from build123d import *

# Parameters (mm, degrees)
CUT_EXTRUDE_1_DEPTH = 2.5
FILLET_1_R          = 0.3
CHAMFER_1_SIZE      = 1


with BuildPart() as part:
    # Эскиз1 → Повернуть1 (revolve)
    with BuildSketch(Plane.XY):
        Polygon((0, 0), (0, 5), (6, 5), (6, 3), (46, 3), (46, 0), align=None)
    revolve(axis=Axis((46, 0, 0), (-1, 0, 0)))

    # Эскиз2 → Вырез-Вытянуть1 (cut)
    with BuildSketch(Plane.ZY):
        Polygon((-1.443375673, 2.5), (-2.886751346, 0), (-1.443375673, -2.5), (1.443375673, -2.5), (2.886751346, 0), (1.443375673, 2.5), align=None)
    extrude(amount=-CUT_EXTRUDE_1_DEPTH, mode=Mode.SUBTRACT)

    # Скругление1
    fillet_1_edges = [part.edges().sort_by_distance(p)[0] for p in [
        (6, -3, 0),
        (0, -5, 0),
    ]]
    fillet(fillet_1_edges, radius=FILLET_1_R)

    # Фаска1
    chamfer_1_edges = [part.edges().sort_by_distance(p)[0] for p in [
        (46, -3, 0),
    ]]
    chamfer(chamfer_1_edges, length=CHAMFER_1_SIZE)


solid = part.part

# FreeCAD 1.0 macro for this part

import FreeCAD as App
import Part
import Sketcher
Q = App.Units.Quantity


def edges_at(feature, points):
    """Names of the edges that pass closest to the given points."""
    edges = feature.Shape.Edges
    near = lambda p: min(range(len(edges)), key=lambda i: edges[i].distToShape(Part.Vertex(*p))[0])
    return sorted({f"Edge{near(p) + 1}" for p in points})

doc = App.newDocument("Part")
body = doc.addObject("PartDesign::Body", "Body")

# Sketch on XY plane
sketch1 = body.newObject("Sketcher::SketchObject", "Sketch")
sketch1.AttachmentSupport = (doc.getObject("XY_Plane"), [""])
sketch1.MapMode = "FlatFace"
sketch1.addGeometry([
    Part.LineSegment(App.Vector(0, 5, 0), App.Vector(0, 0, 0)),  # 0
    Part.LineSegment(App.Vector(0, 0, 0), App.Vector(46, 0, 0)),  # 1
    Part.LineSegment(App.Vector(46, 0, 0), App.Vector(46, 3, 0)),  # 2
    Part.LineSegment(App.Vector(46, 3, 0), App.Vector(6, 3, 0)),  # 3
    Part.LineSegment(App.Vector(6, 3, 0), App.Vector(6, 5, 0)),  # 4
    Part.LineSegment(App.Vector(6, 5, 0), App.Vector(0, 5, 0)),  # 5
], False)
sketch1.addConstraint([
    Sketcher.Constraint("Coincident", 0, 2, 1, 1),
    Sketcher.Constraint("Coincident", 1, 2, 2, 1),
    Sketcher.Constraint("Coincident", 2, 2, 3, 1),
    Sketcher.Constraint("Coincident", 3, 2, 4, 1),
    Sketcher.Constraint("Coincident", 4, 2, 5, 1),
    Sketcher.Constraint("Coincident", 5, 2, 0, 1),
    Sketcher.Constraint("Vertical", 0),
    Sketcher.Constraint("Horizontal", 1),
    Sketcher.Constraint("Vertical", 2),
    Sketcher.Constraint("Horizontal", 3),
    Sketcher.Constraint("Vertical", 4),
    Sketcher.Constraint("Horizontal", 5),
    Sketcher.Constraint("Coincident", 0, 2, -1, 1),
    Sketcher.Constraint("DistanceX", 1, 1, 1, 2, Q("46 mm")),
    Sketcher.Constraint("DistanceX", 3, 2, 3, 1, Q("40 mm")),
    Sketcher.Constraint("DistanceY", 0, 2, 0, 1, Q("5 mm")),
    Sketcher.Constraint("DistanceY", 2, 1, 2, 2, Q("3 mm")),
])
revolution = body.newObject("PartDesign::Revolution", "Revolution")
revolution.Profile = sketch1
revolution.ReferenceAxis = (sketch1, ["H_Axis"])
revolution.Angle = 360

# Sketch on YZ plane
sketch2 = body.newObject("Sketcher::SketchObject", "Sketch001")
sketch2.AttachmentSupport = (doc.getObject("YZ_Plane"), [""])
sketch2.MapMode = "FlatFace"
sketch2.addGeometry([
    Part.LineSegment(App.Vector(2.5, -1.443376, 0), App.Vector(0, -2.886751, 0)),  # 0
    Part.LineSegment(App.Vector(0, -2.886751, 0), App.Vector(-2.5, -1.443376, 0)),  # 1
    Part.LineSegment(App.Vector(-2.5, -1.443376, 0), App.Vector(-2.5, 1.443376, 0)),  # 2
    Part.LineSegment(App.Vector(-2.5, 1.443376, 0), App.Vector(0, 2.886751, 0)),  # 3
    Part.LineSegment(App.Vector(0, 2.886751, 0), App.Vector(2.5, 1.443376, 0)),  # 4
    Part.LineSegment(App.Vector(2.5, 1.443376, 0), App.Vector(2.5, -1.443376, 0)),  # 5
], False)
sketch2.addConstraint([
    Sketcher.Constraint("Coincident", 0, 2, 1, 1),
    Sketcher.Constraint("Coincident", 1, 2, 2, 1),
    Sketcher.Constraint("Coincident", 2, 2, 3, 1),
    Sketcher.Constraint("Coincident", 3, 2, 4, 1),
    Sketcher.Constraint("Coincident", 4, 2, 5, 1),
    Sketcher.Constraint("Coincident", 5, 2, 0, 1),
    Sketcher.Constraint("Vertical", 2),
    Sketcher.Constraint("Vertical", 5),
    Sketcher.Constraint("Symmetric", 0, 2, 3, 2, -1, 1),
    Sketcher.Constraint("Symmetric", 1, 2, 4, 2, -1, 1),
    Sketcher.Constraint("PointOnObject", 0, 2, -2),
    Sketcher.Constraint("Parallel", 0, 3),
    Sketcher.Constraint("Horizontal", 2, 2, 4, 2),
    Sketcher.Constraint("Angle", 0, Q("-150 deg")),
    Sketcher.Constraint("DistanceX", 2, 2, 4, 2, Q("5 mm")),
    Sketcher.Constraint("DistanceY", 2, 1, 2, 2, Q("2.886751 mm")),
])
pocket1 = body.newObject("PartDesign::Pocket", "Pocket")
pocket1.Profile = sketch2
pocket1.Length = 2.5
pocket1.Reversed = True
doc.recompute()

fillet = body.newObject("PartDesign::Fillet", "Fillet")
fillet.Base = (pocket1, edges_at(pocket1, [(6, -3, 0), (0, -5, 0)]))
fillet.Radius = 0.3
doc.recompute()

chamfer = body.newObject("PartDesign::Chamfer", "Chamfer")
chamfer.Base = (fillet, edges_at(fillet, [(46, -3, 0)]))
chamfer.Size = 1

doc.recompute()
